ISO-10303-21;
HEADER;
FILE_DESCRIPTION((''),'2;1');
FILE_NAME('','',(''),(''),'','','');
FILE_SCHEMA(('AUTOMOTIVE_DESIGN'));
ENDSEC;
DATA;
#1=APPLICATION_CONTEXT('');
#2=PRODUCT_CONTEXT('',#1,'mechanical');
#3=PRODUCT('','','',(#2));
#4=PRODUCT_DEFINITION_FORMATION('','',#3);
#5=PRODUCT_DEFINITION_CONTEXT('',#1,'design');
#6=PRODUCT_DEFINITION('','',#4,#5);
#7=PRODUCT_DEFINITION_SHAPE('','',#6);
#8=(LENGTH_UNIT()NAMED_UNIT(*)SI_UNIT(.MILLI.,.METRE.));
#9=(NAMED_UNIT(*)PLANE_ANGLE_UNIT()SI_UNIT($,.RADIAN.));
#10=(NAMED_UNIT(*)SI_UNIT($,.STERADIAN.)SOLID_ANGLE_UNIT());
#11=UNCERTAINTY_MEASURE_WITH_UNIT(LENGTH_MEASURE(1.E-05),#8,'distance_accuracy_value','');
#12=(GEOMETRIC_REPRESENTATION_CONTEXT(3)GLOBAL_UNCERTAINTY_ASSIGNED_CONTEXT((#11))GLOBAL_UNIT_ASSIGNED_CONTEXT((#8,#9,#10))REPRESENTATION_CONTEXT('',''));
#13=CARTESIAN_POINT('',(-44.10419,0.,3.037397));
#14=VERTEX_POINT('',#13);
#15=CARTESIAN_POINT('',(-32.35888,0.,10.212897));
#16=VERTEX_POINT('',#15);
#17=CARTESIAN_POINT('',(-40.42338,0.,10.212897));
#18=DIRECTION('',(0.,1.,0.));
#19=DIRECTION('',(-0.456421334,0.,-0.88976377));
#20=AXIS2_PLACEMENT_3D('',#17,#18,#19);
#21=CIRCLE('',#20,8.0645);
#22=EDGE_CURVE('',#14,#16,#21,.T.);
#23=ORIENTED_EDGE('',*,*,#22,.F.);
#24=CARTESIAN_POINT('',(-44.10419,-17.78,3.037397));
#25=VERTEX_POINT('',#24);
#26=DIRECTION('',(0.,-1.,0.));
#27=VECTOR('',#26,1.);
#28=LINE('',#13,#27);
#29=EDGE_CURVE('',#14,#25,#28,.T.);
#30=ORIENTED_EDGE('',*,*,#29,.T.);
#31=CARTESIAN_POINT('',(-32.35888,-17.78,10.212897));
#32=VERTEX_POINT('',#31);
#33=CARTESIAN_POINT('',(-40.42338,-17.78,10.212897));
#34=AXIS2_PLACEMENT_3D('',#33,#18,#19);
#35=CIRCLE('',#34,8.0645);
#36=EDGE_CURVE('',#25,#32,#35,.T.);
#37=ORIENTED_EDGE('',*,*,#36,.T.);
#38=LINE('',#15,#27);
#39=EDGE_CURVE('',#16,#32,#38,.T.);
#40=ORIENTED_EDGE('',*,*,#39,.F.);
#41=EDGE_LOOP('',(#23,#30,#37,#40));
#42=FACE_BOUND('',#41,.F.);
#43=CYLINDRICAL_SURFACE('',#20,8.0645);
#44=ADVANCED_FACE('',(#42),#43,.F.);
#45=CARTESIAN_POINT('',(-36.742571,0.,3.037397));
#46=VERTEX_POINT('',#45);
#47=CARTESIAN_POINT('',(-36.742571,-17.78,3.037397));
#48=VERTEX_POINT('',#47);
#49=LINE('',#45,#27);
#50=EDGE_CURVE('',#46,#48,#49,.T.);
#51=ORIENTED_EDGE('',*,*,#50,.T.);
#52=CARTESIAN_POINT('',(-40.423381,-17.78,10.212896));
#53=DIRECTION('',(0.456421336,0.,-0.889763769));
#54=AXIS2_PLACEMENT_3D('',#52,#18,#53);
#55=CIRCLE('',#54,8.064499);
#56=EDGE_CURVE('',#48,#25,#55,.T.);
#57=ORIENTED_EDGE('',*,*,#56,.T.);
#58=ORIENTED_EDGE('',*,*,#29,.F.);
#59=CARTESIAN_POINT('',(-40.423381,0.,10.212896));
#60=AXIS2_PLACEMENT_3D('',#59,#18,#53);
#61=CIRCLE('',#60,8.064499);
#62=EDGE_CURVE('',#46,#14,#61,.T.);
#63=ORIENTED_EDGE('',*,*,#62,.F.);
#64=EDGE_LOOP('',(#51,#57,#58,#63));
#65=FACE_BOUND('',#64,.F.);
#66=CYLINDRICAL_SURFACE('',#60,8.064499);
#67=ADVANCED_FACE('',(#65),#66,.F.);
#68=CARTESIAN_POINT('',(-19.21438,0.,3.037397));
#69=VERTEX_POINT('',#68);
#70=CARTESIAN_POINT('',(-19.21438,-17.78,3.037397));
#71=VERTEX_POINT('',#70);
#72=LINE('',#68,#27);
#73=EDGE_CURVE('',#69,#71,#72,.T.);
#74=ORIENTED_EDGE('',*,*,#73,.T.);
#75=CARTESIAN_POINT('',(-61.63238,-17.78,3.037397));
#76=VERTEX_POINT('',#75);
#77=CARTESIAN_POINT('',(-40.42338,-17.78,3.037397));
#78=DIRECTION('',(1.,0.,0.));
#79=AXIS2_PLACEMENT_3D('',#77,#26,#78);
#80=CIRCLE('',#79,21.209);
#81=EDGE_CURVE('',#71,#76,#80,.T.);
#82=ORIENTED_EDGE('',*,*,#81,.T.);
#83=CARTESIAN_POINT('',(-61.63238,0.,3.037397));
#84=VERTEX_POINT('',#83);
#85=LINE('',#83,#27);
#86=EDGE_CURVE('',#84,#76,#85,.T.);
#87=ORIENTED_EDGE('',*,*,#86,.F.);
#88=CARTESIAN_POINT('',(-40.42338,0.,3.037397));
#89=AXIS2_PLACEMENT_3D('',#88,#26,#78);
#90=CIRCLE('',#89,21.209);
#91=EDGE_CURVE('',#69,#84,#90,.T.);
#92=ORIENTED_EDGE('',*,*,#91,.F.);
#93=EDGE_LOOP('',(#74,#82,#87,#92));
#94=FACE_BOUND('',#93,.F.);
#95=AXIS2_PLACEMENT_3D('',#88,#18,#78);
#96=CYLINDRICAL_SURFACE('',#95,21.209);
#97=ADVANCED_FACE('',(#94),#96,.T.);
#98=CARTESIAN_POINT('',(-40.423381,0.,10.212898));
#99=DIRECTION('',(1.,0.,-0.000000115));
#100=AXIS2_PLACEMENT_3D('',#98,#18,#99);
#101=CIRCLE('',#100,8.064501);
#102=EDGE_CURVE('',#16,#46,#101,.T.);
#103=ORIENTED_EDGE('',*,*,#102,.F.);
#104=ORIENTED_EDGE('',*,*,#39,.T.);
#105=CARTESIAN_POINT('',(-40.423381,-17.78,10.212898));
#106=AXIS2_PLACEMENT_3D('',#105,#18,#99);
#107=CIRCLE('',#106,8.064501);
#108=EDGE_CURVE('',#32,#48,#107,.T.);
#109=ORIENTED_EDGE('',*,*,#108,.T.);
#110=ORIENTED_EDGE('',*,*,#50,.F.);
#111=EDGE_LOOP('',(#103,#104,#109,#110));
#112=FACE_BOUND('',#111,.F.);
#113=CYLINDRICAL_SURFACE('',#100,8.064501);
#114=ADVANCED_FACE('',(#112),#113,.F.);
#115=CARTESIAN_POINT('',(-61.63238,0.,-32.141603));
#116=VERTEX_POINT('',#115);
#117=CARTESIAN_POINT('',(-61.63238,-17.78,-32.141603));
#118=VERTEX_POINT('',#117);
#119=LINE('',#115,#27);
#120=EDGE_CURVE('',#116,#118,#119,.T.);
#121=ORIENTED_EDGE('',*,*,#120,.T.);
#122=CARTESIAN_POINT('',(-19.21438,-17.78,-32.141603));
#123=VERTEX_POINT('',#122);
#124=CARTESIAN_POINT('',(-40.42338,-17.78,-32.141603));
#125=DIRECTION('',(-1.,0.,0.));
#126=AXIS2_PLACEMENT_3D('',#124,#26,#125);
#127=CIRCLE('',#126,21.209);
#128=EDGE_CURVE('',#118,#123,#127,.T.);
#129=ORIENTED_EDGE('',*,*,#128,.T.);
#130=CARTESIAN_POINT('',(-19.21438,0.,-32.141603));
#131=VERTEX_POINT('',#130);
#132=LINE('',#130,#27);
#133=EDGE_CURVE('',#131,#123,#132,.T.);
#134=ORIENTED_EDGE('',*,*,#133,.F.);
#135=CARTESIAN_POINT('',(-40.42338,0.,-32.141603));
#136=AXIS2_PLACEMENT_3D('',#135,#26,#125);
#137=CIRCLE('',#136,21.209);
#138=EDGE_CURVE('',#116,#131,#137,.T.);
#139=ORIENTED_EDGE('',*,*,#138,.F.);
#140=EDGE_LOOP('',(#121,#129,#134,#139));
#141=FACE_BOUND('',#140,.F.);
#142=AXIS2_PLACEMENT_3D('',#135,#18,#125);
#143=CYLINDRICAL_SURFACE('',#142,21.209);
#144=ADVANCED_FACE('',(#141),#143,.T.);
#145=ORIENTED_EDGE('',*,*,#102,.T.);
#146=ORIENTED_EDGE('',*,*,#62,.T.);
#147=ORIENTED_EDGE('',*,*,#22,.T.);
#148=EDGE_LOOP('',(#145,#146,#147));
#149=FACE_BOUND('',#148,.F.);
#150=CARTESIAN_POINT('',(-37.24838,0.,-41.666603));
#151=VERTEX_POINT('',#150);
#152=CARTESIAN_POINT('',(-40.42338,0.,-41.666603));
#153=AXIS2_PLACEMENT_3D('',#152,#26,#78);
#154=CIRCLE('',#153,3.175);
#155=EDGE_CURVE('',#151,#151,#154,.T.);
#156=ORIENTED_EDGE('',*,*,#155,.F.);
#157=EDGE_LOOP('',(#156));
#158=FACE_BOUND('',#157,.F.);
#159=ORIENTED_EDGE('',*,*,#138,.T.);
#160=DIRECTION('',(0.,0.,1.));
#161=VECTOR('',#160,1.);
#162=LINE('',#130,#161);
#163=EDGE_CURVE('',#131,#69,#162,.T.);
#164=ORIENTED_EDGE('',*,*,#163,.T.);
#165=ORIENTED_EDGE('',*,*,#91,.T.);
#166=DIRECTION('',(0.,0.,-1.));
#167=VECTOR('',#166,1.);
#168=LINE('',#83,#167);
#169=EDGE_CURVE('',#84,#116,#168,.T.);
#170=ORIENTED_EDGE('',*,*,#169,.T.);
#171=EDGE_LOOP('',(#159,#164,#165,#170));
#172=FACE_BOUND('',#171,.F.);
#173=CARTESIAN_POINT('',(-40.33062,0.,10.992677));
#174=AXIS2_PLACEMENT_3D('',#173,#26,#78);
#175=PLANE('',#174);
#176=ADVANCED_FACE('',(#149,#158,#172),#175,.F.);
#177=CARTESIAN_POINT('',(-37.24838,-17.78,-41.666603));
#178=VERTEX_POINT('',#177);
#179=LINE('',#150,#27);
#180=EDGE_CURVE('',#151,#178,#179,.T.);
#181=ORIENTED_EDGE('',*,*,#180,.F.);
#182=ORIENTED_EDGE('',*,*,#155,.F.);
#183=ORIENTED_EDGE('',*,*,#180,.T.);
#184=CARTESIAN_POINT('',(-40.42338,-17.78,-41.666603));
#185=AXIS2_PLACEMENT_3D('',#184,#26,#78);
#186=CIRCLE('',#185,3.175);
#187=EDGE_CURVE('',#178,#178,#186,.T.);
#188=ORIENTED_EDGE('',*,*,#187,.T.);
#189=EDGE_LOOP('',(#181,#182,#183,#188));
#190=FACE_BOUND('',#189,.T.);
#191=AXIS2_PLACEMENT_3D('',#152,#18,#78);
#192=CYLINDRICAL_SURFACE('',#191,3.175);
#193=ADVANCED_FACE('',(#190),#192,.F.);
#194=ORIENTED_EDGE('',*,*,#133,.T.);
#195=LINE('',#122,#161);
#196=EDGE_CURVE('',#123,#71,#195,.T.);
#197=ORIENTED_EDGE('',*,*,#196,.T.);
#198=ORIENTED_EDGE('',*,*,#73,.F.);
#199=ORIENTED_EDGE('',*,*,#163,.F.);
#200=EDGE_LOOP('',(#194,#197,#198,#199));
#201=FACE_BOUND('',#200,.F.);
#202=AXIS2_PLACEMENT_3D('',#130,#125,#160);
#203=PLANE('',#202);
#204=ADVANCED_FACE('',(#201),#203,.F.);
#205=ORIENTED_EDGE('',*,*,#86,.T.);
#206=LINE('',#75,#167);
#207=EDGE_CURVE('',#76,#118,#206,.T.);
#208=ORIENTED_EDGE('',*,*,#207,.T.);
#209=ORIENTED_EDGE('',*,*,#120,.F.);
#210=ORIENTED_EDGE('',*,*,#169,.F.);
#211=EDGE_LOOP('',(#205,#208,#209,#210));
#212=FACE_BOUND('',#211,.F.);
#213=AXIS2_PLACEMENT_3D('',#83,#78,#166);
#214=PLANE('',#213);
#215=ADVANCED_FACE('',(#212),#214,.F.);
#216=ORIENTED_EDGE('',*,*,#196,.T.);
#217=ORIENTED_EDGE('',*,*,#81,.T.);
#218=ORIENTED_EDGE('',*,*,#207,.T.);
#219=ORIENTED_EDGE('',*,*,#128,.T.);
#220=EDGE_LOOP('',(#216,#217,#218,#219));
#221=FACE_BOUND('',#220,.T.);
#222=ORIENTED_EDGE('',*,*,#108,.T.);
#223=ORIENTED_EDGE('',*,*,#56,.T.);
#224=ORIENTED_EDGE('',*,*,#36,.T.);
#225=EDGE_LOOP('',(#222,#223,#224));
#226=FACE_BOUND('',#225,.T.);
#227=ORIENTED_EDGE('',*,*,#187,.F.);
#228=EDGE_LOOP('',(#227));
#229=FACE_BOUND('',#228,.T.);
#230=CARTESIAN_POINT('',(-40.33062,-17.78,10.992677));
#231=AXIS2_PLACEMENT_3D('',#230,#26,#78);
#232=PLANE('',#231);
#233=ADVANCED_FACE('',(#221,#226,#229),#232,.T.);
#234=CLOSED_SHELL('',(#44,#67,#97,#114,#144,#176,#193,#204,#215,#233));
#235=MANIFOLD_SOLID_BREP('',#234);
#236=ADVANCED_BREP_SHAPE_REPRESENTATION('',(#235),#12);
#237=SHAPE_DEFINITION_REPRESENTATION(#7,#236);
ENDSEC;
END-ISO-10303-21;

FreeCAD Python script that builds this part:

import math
import FreeCAD as App
import Part
import Sketcher
from FreeCAD import Vector
Q = App.Units.Quantity

doc = App.newDocument("Part")
body = doc.addObject("PartDesign::Body", "Body")

# Sketch on XZ plane
sketch1 = doc.addObject("Sketcher::SketchObject", "Sketch")
body.addObject(sketch1)
sketch1.AttachmentSupport = (doc.XZ_Plane, [""])
sketch1.MapMode = "FlatFace"
sketch1.addGeometry(Part.ArcOfCircle(Part.Circle(Vector(-40.42338, 3.037397, 0), Vector(0, 0, 1), 21.209), math.radians(0), math.radians(180)), False)
sketch1.addGeometry(Part.LineSegment(Vector(-61.63238, 3.037397, 0), Vector(-61.63238, -32.141603, 0)), False)
sketch1.addGeometry(Part.ArcOfCircle(Part.Circle(Vector(-40.42338, -32.141603, 0), Vector(0, 0, 1), 21.209), math.radians(180), math.radians(360)), False)
sketch1.addGeometry(Part.LineSegment(Vector(-19.21438, -32.141603, 0), Vector(-19.21438, 3.037397, 0)), False)
sketch1.addGeometry(Part.Circle(Vector(-40.42338, -41.666603, 0), Vector(0, 0, 1), 3.175), False)
sketch1.addGeometry(Part.ArcOfCircle(Part.Circle(Vector(-40.42338, 10.212897, 0), Vector(0, 0, 1), 8.0645), math.radians(0), math.radians(242.843577)), False)
sketch1.addGeometry(Part.ArcOfCircle(Part.Circle(Vector(-40.423381, 10.212898, 0), Vector(0, 0, 1), 8.064501), math.radians(-62.84358), math.radians(-0.000007)), False)
sketch1.addGeometry(Part.ArcOfCircle(Part.Circle(Vector(-40.423381, 10.212896, 0), Vector(0, 0, 1), 8.064499), math.radians(-117.156423), math.radians(-62.843577)), False)
sketch1.addConstraint(Sketcher.Constraint("Tangent", 0, 2, 1, 1))
sketch1.addConstraint(Sketcher.Constraint("Tangent", 1, 2, 2, 1))
sketch1.addConstraint(Sketcher.Constraint("Tangent", 2, 2, 3, 1))
sketch1.addConstraint(Sketcher.Constraint("Tangent", 3, 2, 0, 1))
sketch1.addConstraint(Sketcher.Constraint("Tangent", 5, 1, 6, 2))
sketch1.addConstraint(Sketcher.Constraint("Tangent", 6, 1, 7, 2))
sketch1.addConstraint(Sketcher.Constraint("Tangent", 7, 1, 5, 2))
sketch1.addConstraint(Sketcher.Constraint("Vertical", 1))
sketch1.addConstraint(Sketcher.Constraint("Vertical", 3))
sketch1.addConstraint(Sketcher.Constraint("Horizontal", 7, 3, 5, 1))
sketch1.addConstraint(Sketcher.Constraint("Horizontal", 3, 2, 6, 1))
sketch1.addConstraint(Sketcher.Constraint("Horizontal", 6, 1, 7, 1))
sketch1.addConstraint(Sketcher.Constraint("Vertical", 2, 3, 4, 3))
sketch1.addConstraint(Sketcher.Constraint("Vertical", 4, 3, 5, 3))
sketch1.addConstraint(Sketcher.Constraint("Diameter", 4, Q("0.25 in")))
sketch1.addConstraint(Sketcher.Constraint("Radius", 0, Q("0.835 in")))
sketch1.addConstraint(Sketcher.Constraint("Radius", 5, Q("0.3175 in")))
sketch1.addConstraint(Sketcher.Constraint("DistanceY", 1, 2, 1, 1, Q("1.385 in")))
sketch1.addConstraint(Sketcher.Constraint("DistanceY", 4, 3, 0, 3, Q("1.76 in")))
sketch1.addConstraint(Sketcher.Constraint("DistanceY", 0, 3, 5, 3, Q("0.2825 in")))
sketch1.addConstraint(Sketcher.Constraint("DistanceX", 0, 3, -1, 1, Q("40.42338 mm")))
sketch1.addConstraint(Sketcher.Constraint("DistanceY", -1, 1, 0, 3, Q("3.037397 mm")))
pad1 = doc.addObject("PartDesign::Pad", "Pad")
body.addObject(pad1)
pad1.Profile = sketch1
pad1.Length = Q("0.7 in")

doc.recompute()
